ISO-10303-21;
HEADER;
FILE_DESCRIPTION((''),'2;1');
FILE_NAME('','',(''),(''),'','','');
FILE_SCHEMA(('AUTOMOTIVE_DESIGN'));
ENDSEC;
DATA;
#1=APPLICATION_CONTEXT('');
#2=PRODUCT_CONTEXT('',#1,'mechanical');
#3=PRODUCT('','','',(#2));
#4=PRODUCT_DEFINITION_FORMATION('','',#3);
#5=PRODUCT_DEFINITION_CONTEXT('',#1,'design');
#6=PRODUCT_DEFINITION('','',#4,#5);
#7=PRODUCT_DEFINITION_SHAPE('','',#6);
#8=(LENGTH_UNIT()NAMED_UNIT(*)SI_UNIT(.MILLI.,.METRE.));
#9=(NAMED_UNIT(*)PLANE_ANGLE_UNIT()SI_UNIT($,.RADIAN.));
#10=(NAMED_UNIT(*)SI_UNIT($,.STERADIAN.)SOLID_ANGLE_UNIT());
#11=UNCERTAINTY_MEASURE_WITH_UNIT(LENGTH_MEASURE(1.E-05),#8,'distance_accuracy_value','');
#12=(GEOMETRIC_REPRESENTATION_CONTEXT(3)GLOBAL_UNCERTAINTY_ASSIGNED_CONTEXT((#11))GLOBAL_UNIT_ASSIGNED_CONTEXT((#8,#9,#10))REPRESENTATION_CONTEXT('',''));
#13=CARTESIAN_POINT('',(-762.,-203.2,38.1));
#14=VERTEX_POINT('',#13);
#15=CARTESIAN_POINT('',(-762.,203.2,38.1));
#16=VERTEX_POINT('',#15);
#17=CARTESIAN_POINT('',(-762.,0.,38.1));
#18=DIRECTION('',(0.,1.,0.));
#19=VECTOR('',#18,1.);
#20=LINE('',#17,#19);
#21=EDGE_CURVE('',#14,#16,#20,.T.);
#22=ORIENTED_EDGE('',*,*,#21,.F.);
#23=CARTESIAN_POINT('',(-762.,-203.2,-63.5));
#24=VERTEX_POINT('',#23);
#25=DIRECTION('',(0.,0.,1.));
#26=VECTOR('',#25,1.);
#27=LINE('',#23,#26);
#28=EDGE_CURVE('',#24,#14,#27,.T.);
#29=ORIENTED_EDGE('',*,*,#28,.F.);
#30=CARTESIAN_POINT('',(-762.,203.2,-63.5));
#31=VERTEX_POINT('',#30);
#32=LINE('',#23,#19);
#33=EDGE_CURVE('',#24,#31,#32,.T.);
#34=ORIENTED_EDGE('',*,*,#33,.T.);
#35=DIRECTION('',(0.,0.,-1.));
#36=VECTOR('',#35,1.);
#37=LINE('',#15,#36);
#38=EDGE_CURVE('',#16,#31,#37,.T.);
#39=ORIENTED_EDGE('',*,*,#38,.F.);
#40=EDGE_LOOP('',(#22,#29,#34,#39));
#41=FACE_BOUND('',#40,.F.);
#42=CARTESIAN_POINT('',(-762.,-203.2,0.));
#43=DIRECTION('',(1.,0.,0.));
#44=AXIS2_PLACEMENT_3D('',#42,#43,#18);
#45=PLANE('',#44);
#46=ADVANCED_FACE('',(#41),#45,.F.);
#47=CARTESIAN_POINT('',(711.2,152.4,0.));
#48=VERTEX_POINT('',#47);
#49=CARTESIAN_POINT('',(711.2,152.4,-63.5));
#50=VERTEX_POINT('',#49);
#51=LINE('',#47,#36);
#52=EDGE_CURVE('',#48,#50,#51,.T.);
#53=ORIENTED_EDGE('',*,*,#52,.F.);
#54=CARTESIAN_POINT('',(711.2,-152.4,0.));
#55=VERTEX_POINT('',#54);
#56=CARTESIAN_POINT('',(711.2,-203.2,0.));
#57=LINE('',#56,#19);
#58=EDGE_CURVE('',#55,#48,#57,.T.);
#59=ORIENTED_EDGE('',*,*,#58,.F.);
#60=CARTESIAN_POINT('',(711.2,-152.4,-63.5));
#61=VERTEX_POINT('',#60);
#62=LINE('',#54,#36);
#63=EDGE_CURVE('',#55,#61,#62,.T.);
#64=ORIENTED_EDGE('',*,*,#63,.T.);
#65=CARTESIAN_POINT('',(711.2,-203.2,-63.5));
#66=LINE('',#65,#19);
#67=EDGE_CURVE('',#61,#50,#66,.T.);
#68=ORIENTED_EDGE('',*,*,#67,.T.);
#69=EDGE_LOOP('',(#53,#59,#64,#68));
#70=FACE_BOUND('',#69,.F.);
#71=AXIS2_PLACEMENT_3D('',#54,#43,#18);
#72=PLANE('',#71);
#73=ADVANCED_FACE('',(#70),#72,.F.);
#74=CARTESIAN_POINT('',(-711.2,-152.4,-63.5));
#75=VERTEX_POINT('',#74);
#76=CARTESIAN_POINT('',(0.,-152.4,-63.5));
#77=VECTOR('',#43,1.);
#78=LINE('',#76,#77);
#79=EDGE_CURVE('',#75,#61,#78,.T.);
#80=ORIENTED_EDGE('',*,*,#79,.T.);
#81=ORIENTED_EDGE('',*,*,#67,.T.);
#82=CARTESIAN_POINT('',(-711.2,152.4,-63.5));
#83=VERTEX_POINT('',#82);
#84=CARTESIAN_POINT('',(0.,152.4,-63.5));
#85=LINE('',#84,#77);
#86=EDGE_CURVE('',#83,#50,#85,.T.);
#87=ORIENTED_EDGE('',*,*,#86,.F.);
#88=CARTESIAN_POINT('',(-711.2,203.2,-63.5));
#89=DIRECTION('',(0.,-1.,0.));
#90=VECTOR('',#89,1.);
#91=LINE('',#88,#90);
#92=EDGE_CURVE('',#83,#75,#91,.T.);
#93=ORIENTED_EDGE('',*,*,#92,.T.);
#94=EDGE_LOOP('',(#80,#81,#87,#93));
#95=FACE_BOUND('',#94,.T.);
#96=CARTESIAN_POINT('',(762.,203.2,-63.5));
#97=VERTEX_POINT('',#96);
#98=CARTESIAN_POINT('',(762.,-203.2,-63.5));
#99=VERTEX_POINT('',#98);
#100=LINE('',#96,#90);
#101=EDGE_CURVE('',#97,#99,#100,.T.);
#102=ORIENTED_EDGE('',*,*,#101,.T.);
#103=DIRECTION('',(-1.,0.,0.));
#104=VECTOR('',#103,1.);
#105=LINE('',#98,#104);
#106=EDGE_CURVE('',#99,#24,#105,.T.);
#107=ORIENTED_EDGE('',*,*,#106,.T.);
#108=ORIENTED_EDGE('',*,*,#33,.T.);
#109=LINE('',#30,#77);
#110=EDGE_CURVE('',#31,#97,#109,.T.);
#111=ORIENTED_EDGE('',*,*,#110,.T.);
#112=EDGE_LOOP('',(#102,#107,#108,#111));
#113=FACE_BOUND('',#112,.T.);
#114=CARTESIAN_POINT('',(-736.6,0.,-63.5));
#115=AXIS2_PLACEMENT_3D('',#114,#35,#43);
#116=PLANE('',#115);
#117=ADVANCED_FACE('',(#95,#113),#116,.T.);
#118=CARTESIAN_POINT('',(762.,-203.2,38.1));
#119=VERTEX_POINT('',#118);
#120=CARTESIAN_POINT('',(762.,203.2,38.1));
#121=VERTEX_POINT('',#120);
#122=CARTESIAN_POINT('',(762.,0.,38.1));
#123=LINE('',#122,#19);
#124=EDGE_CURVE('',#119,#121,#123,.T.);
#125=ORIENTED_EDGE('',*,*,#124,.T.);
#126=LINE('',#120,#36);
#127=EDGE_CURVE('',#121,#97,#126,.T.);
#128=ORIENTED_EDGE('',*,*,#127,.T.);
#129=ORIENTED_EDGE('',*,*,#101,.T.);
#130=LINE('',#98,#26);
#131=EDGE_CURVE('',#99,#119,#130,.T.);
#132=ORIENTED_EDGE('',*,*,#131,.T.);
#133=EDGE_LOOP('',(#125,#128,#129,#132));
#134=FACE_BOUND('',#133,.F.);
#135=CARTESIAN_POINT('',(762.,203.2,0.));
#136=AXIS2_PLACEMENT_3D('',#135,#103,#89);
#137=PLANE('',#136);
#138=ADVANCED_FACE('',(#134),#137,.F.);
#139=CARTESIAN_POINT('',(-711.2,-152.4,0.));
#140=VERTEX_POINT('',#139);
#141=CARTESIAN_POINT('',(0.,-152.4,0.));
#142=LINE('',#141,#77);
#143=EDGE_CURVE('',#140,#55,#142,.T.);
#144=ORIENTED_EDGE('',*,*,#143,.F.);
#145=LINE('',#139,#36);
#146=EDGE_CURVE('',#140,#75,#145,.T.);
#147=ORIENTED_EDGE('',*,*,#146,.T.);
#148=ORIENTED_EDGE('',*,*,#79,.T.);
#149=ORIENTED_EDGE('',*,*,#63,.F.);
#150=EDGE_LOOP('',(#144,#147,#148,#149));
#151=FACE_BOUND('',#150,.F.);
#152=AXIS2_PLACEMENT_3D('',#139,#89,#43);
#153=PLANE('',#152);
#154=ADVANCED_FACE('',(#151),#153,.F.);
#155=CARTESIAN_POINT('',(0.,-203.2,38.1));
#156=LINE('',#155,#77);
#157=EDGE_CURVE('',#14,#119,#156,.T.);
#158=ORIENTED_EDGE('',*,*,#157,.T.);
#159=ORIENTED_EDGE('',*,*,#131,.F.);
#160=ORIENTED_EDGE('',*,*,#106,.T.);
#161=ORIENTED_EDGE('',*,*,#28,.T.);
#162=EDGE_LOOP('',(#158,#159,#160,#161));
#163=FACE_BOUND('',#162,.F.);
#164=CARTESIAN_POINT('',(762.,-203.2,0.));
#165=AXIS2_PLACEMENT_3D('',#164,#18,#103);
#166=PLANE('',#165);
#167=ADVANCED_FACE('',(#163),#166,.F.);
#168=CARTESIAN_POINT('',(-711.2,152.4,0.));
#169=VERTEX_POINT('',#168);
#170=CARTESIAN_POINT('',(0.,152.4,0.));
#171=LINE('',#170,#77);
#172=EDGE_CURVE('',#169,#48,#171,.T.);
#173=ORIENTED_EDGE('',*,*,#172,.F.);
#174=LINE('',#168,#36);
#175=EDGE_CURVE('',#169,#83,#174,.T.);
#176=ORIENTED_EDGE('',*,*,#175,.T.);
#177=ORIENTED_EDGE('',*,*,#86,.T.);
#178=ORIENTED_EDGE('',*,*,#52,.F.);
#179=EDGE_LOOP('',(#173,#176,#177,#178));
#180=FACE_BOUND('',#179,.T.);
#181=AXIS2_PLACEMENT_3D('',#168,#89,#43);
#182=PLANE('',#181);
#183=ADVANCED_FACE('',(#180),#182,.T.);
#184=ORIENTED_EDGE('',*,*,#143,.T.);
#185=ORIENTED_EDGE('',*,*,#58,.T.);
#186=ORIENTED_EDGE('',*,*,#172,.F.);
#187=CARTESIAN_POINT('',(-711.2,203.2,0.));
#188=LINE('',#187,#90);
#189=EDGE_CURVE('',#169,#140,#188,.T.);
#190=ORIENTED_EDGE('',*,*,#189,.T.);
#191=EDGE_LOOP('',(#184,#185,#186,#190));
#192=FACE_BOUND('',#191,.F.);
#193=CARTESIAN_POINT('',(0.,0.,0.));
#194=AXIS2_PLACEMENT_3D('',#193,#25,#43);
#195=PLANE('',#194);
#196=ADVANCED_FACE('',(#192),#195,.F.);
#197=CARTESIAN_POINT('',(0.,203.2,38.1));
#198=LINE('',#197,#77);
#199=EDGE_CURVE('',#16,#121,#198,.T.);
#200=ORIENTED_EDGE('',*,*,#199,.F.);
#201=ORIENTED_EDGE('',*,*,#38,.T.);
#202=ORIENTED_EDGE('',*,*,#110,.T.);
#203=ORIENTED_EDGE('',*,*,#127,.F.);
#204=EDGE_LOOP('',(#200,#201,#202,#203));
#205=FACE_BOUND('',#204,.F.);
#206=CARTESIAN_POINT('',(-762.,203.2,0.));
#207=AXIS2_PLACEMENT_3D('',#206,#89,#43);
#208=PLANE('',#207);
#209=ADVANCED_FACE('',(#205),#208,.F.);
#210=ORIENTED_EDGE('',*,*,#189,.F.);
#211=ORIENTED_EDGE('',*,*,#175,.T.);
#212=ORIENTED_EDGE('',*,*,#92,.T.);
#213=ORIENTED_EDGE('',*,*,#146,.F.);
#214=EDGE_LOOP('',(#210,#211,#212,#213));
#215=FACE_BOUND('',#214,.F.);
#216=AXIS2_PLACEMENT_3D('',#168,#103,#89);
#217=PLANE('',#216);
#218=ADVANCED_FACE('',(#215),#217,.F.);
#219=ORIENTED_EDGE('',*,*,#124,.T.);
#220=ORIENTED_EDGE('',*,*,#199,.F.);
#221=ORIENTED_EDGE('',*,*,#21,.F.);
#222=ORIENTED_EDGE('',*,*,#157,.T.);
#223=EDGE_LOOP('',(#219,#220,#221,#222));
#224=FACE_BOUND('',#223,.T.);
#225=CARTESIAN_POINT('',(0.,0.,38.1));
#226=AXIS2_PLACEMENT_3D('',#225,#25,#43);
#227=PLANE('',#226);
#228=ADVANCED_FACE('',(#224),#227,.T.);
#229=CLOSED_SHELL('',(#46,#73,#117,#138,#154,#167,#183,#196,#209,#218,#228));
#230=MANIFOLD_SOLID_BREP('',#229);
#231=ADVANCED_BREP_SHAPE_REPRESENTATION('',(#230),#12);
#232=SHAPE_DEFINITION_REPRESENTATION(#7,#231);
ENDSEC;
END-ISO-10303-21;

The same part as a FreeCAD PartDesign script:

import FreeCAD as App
import Part
import Sketcher

V = App.Vector
Q = App.Units.Quantity

doc = App.newDocument("Part")
params = doc.addObject("Spreadsheet::Sheet", "Params")
for row, (alias, value) in enumerate([
    ("sketch1_width", "60 in"),
    ("sketch1_height", "16 in"),
    ("pad1_length", "1.5 in"),
    ("sketch2_width", "60 in"),
    ("sketch2_width2", "56 in"),
    ("sketch2_height", "16 in"),
    ("sketch2_height2", "12 in"),
    ("pad2_length", "2.5 in"),
], start=1):
    params.set(f"A{row}", alias)
    params.set(f"B{row}", "=" + value)
    params.setAlias(f"B{row}", alias)

body = doc.addObject("PartDesign::Body", "Body")

# Sketch on XY plane
sketch1 = body.newObject("Sketcher::SketchObject", "Sketch")
sketch1.AttachmentSupport = (doc.getObject("XY_Plane"), [""])
sketch1.MapMode = "FlatFace"
sketch1.addGeometry(Part.LineSegment(V(-762, 203, 0), V(-762, -203, 0)), False)
sketch1.addGeometry(Part.LineSegment(V(-762, -203, 0), V(762, -203, 0)), False)
sketch1.addGeometry(Part.LineSegment(V(762, -203, 0), V(762, 203, 0)), False)
sketch1.addGeometry(Part.LineSegment(V(762, 203, 0), V(-762, 203, 0)), False)
sketch1.addConstraint(Sketcher.Constraint("Coincident", 0, 2, 1, 1))
sketch1.addConstraint(Sketcher.Constraint("Coincident", 1, 2, 2, 1))
sketch1.addConstraint(Sketcher.Constraint("Coincident", 2, 2, 3, 1))
sketch1.addConstraint(Sketcher.Constraint("Coincident", 3, 2, 0, 1))
sketch1.addConstraint(Sketcher.Constraint("Vertical", 0))
sketch1.addConstraint(Sketcher.Constraint("Horizontal", 1))
sketch1.addConstraint(Sketcher.Constraint("Vertical", 2))
sketch1.addConstraint(Sketcher.Constraint("Horizontal", 3))
sketch1.addConstraint(Sketcher.Constraint("Symmetric", 0, 2, 2, 2, -1, 1))
sketch1.addConstraint(Sketcher.Constraint("DistanceX", 1, 1, 1, 2, Q("60 in")))
sketch1.addConstraint(Sketcher.Constraint("DistanceY", 0, 2, 0, 1, Q("16 in")))
sketch1.setExpression("Constraints[9]", "Params.sketch1_width")
sketch1.setExpression("Constraints[10]", "Params.sketch1_height")
pad1 = body.newObject("PartDesign::Pad", "Pad")
pad1.Profile = sketch1
pad1.setExpression("Length", "Params.pad1_length")

# Sketch on XY plane
sketch2 = body.newObject("Sketcher::SketchObject", "Sketch001")
sketch2.AttachmentSupport = (doc.getObject("XY_Plane"), [""])
sketch2.MapMode = "FlatFace"
sketch2.addGeometry(Part.LineSegment(V(-762, -203, 0), V(-762, 203, 0)), False)
sketch2.addGeometry(Part.LineSegment(V(-762, 203, 0), V(762, 203, 0)), False)
sketch2.addGeometry(Part.LineSegment(V(762, 203, 0), V(762, -203, 0)), False)
sketch2.addGeometry(Part.LineSegment(V(762, -203, 0), V(-762, -203, 0)), False)
sketch2.addGeometry(Part.LineSegment(V(711, -152, 0), V(711, 152, 0)), False)
sketch2.addGeometry(Part.LineSegment(V(711, 152, 0), V(-711, 152, 0)), False)
sketch2.addGeometry(Part.LineSegment(V(-711, 152, 0), V(-711, -152, 0)), False)
sketch2.addGeometry(Part.LineSegment(V(-711, -152, 0), V(711, -152, 0)), False)
sketch2.addConstraint(Sketcher.Constraint("Coincident", 0, 2, 1, 1))
sketch2.addConstraint(Sketcher.Constraint("Coincident", 1, 2, 2, 1))
sketch2.addConstraint(Sketcher.Constraint("Coincident", 2, 2, 3, 1))
sketch2.addConstraint(Sketcher.Constraint("Coincident", 3, 2, 0, 1))
sketch2.addConstraint(Sketcher.Constraint("Coincident", 4, 2, 5, 1))
sketch2.addConstraint(Sketcher.Constraint("Coincident", 5, 2, 6, 1))
sketch2.addConstraint(Sketcher.Constraint("Coincident", 6, 2, 7, 1))
sketch2.addConstraint(Sketcher.Constraint("Coincident", 7, 2, 4, 1))
sketch2.addConstraint(Sketcher.Constraint("Vertical", 0))
sketch2.addConstraint(Sketcher.Constraint("Horizontal", 1))
sketch2.addConstraint(Sketcher.Constraint("Vertical", 2))
sketch2.addConstraint(Sketcher.Constraint("Horizontal", 3))
sketch2.addConstraint(Sketcher.Constraint("Vertical", 4))
sketch2.addConstraint(Sketcher.Constraint("Horizontal", 5))
sketch2.addConstraint(Sketcher.Constraint("Vertical", 6))
sketch2.addConstraint(Sketcher.Constraint("Horizontal", 7))
sketch2.addConstraint(Sketcher.Constraint("Symmetric", 0, 2, 2, 2, -1, 1))
sketch2.addConstraint(Sketcher.Constraint("Symmetric", 4, 2, 6, 2, -1, 1))
sketch2.addConstraint(Sketcher.Constraint("DistanceX", 1, 1, 1, 2, Q("60 in")))
sketch2.addConstraint(Sketcher.Constraint("DistanceX", 5, 2, 5, 1, Q("56 in")))
sketch2.addConstraint(Sketcher.Constraint("DistanceY", 0, 1, 0, 2, Q("16 in")))
sketch2.addConstraint(Sketcher.Constraint("DistanceY", 4, 1, 4, 2, Q("12 in")))
sketch2.setExpression("Constraints[18]", "Params.sketch2_width")
sketch2.setExpression("Constraints[19]", "Params.sketch2_width2")
sketch2.setExpression("Constraints[20]", "Params.sketch2_height")
sketch2.setExpression("Constraints[21]", "Params.sketch2_height2")
pad2 = body.newObject("PartDesign::Pad", "Pad001")
pad2.Profile = sketch2
pad2.setExpression("Length", "Params.pad2_length")
pad2.Reversed = True

doc.recompute()
